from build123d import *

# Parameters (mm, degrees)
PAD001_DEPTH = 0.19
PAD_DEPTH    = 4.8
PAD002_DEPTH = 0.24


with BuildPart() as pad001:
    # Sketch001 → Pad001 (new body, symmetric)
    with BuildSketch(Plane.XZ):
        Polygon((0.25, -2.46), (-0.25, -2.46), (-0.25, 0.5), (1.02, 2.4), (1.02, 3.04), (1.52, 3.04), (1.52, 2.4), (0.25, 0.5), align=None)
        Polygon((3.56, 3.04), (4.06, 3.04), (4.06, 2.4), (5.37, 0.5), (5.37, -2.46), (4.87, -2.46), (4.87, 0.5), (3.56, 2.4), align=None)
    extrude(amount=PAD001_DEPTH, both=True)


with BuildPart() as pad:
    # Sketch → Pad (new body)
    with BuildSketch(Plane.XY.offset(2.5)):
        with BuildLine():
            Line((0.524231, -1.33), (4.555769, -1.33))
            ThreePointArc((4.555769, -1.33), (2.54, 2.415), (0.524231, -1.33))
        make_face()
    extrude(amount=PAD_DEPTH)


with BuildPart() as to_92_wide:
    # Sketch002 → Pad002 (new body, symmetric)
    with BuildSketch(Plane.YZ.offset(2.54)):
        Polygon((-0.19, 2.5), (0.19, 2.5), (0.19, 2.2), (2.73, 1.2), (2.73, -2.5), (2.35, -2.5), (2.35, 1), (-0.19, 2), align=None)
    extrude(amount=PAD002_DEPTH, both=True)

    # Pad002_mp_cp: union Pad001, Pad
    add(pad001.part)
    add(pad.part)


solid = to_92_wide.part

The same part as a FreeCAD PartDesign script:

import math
import FreeCAD as App
import Part
import Sketcher
Q = App.Units.Quantity

doc = App.newDocument("Part")
params = doc.addObject("Spreadsheet::Sheet", "Params")
for row, (alias, value) in enumerate([
    ("sketch1_width", "0.5 mm"),
    ("sketch1_height", "2.96 mm"),
    ("sketch1_height2", "0.64 mm"),
    ("pad1_length", "0.38 mm"),
    ("pad2_length", "4.8 mm"),
    ("sketch3_height", "0.5 mm"),
    ("sketch3_height2", "3.5 mm"),
    ("sketch3_height3", "3.7 mm"),
    ("sketch3_width", "0.38 mm"),
    ("pad3_length", "0.48 mm"),
], start=1):
    params.set(f"A{row}", alias)
    params.set(f"B{row}", "=" + value)
    params.setAlias(f"B{row}", alias)

body = doc.addObject("PartDesign::Body", "Body")
body.AllowCompound = True

# Sketch on XZ plane
sketch1 = doc.addObject("Sketcher::SketchObject", "Sketch")
body.addObject(sketch1)
sketch1.AttachmentSupport = (doc.XZ_Plane, [""])
sketch1.MapMode = "FlatFace"
sketch1.addGeometry(Part.LineSegment(App.Vector(-0.25, -2.46, 0), App.Vector(0.25, -2.46, 0)), False)
sketch1.addGeometry(Part.LineSegment(App.Vector(0.25, -2.46, 0), App.Vector(0.25, 0.5, 0)), False)
sketch1.addGeometry(Part.LineSegment(App.Vector(0.25, 0.5, 0), App.Vector(1.52, 2.4, 0)), False)
sketch1.addGeometry(Part.LineSegment(App.Vector(1.52, 2.4, 0), App.Vector(1.52, 3.04, 0)), False)
sketch1.addGeometry(Part.LineSegment(App.Vector(1.52, 3.04, 0), App.Vector(1.02, 3.04, 0)), False)
sketch1.addGeometry(Part.LineSegment(App.Vector(1.02, 3.04, 0), App.Vector(1.02, 2.4, 0)), False)
sketch1.addGeometry(Part.LineSegment(App.Vector(1.02, 2.4, 0), App.Vector(-0.25, 0.5, 0)), False)
sketch1.addGeometry(Part.LineSegment(App.Vector(-0.25, 0.5, 0), App.Vector(-0.25, -2.46, 0)), False)
sketch1.addGeometry(Part.LineSegment(App.Vector(4.06, 3.04, 0), App.Vector(3.56, 3.04, 0)), False)
sketch1.addGeometry(Part.LineSegment(App.Vector(3.56, 3.04, 0), App.Vector(3.56, 2.4, 0)), False)
sketch1.addGeometry(Part.LineSegment(App.Vector(3.56, 2.4, 0), App.Vector(4.87, 0.5, 0)), False)
sketch1.addGeometry(Part.LineSegment(App.Vector(4.87, 0.5, 0), App.Vector(4.87, -2.46, 0)), False)
sketch1.addGeometry(Part.LineSegment(App.Vector(4.87, -2.46, 0), App.Vector(5.37, -2.46, 0)), False)
sketch1.addGeometry(Part.LineSegment(App.Vector(5.37, -2.46, 0), App.Vector(5.37, 0.5, 0)), False)
sketch1.addGeometry(Part.LineSegment(App.Vector(5.37, 0.5, 0), App.Vector(4.06, 2.4, 0)), False)
sketch1.addGeometry(Part.LineSegment(App.Vector(4.06, 2.4, 0), App.Vector(4.06, 3.04, 0)), False)
sketch1.addConstraint(Sketcher.Constraint("Coincident", 0, 2, 1, 1))
sketch1.addConstraint(Sketcher.Constraint("Coincident", 1, 2, 2, 1))
sketch1.addConstraint(Sketcher.Constraint("Coincident", 2, 2, 3, 1))
sketch1.addConstraint(Sketcher.Constraint("Coincident", 3, 2, 4, 1))
sketch1.addConstraint(Sketcher.Constraint("Coincident", 4, 2, 5, 1))
sketch1.addConstraint(Sketcher.Constraint("Coincident", 5, 2, 6, 1))
sketch1.addConstraint(Sketcher.Constraint("Coincident", 6, 2, 7, 1))
sketch1.addConstraint(Sketcher.Constraint("Coincident", 7, 2, 0, 1))
sketch1.addConstraint(Sketcher.Constraint("Coincident", 8, 2, 9, 1))
sketch1.addConstraint(Sketcher.Constraint("Coincident", 9, 2, 10, 1))
sketch1.addConstraint(Sketcher.Constraint("Coincident", 10, 2, 11, 1))
sketch1.addConstraint(Sketcher.Constraint("Coincident", 11, 2, 12, 1))
sketch1.addConstraint(Sketcher.Constraint("Coincident", 12, 2, 13, 1))
sketch1.addConstraint(Sketcher.Constraint("Coincident", 13, 2, 14, 1))
sketch1.addConstraint(Sketcher.Constraint("Coincident", 14, 2, 15, 1))
sketch1.addConstraint(Sketcher.Constraint("Coincident", 15, 2, 8, 1))
sketch1.addConstraint(Sketcher.Constraint("Horizontal", 0))
sketch1.addConstraint(Sketcher.Constraint("Vertical", 1))
sketch1.addConstraint(Sketcher.Constraint("Vertical", 3))
sketch1.addConstraint(Sketcher.Constraint("Horizontal", 4))
sketch1.addConstraint(Sketcher.Constraint("Vertical", 5))
sketch1.addConstraint(Sketcher.Constraint("Vertical", 7))
sketch1.addConstraint(Sketcher.Constraint("Horizontal", 8))
sketch1.addConstraint(Sketcher.Constraint("Vertical", 9))
sketch1.addConstraint(Sketcher.Constraint("Vertical", 11))
sketch1.addConstraint(Sketcher.Constraint("Horizontal", 12))
sketch1.addConstraint(Sketcher.Constraint("Vertical", 13))
sketch1.addConstraint(Sketcher.Constraint("Vertical", 15))
sketch1.addConstraint(Sketcher.Constraint("Symmetric", 1, 2, 6, 2, -2))
sketch1.addConstraint(Sketcher.Constraint("Parallel", 2, 6))
sketch1.addConstraint(Sketcher.Constraint("Parallel", 10, 14))
sketch1.addConstraint(Sketcher.Constraint("Horizontal", 2, 2, 5, 2))
sketch1.addConstraint(Sketcher.Constraint("Horizontal", 4, 2, 8, 2))
sketch1.addConstraint(Sketcher.Constraint("Horizontal", 5, 2, 9, 2))
sketch1.addConstraint(Sketcher.Constraint("Horizontal", 6, 2, 10, 2))
sketch1.addConstraint(Sketcher.Constraint("Horizontal", 7, 2, 11, 2))
sketch1.addConstraint(Sketcher.Constraint("Horizontal", 10, 2, 13, 2))
sketch1.addConstraint(Sketcher.Constraint("Horizontal", 9, 2, 14, 2))
sketch1.addConstraint(Sketcher.Constraint("Equal", 4, 8))
sketch1.addConstraint(Sketcher.Constraint("DistanceX", 0, 1, 0, 2, Q("0.5 mm")))
sketch1.addConstraint(Sketcher.Constraint("DistanceY", 1, 1, 1, 2, Q("2.96 mm")))
sketch1.addConstraint(Sketcher.Constraint("DistanceY", 3, 1, 3, 2, Q("0.64 mm")))
sketch1.addConstraint(Sketcher.Constraint("DistanceY", -1, 1, 1, 2, Q("0.5 mm")))
sketch1.addConstraint(Sketcher.Constraint("DistanceY", -1, 1, 2, 2, Q("2.4 mm")))
sketch1.addConstraint(Sketcher.Constraint("DistanceX", -1, 1, 2, 2, Q("1.52 mm")))
sketch1.addConstraint(Sketcher.Constraint("DistanceX", -1, 1, 8, 2, Q("3.56 mm")))
sketch1.addConstraint(Sketcher.Constraint("DistanceX", -1, 1, 10, 2, Q("4.87 mm")))
sketch1.setExpression("Constraints[39]", "Params.sketch1_width")
sketch1.setExpression("Constraints[40]", "Params.sketch1_height")
sketch1.setExpression("Constraints[41]", "Params.sketch1_height2")
pad1 = doc.addObject("PartDesign::Pad", "Pad")
body.addObject(pad1)
pad1.Profile = sketch1
pad1.setExpression("Length", "Params.pad1_length")
pad1.Midplane = True
body2 = doc.addObject("PartDesign::Body", "Body001")

# Sketch on XY plane
sketch2 = doc.addObject("Sketcher::SketchObject", "Sketch001")
body2.addObject(sketch2)
sketch2.AttachmentSupport = (doc.getObject("XY_Plane001"), [""])
sketch2.MapMode = "FlatFace"
sketch2.AttachmentOffset = App.Placement(App.Vector(0, 0, 2.5), App.Rotation())
sketch2.addGeometry(Part.LineSegment(App.Vector(0.524231, -1.33, 0), App.Vector(4.555769, -1.33, 0)), False)
sketch2.addGeometry(Part.ArcOfCircle(Part.Circle(App.Vector(2.54, 0, 0), App.Vector(0, 0, 1), 2.415), math.radians(-33.416742), math.radians(213.416742)), False)
sketch2.addConstraint(Sketcher.Constraint("Coincident", 0, 1, 1, 2))
sketch2.addConstraint(Sketcher.Constraint("Coincident", 1, 1, 0, 2))
sketch2.addConstraint(Sketcher.Constraint("Horizontal", 0))
sketch2.addConstraint(Sketcher.Constraint("PointOnObject", 1, 3, -1))
sketch2.addConstraint(Sketcher.Constraint("Radius", 1, Q("2.415 mm")))
sketch2.addConstraint(Sketcher.Constraint("DistanceX", -1, 1, 1, 3, Q("2.54 mm")))
sketch2.addConstraint(Sketcher.Constraint("DistanceY", 0, 1, -1, 1, Q("1.33 mm")))
pad2 = doc.addObject("PartDesign::Pad", "Pad001")
body2.addObject(pad2)
pad2.Profile = sketch2
pad2.setExpression("Length", "Params.pad2_length")
body3 = doc.addObject("PartDesign::Body", "Body002")
body3.AllowCompound = True

# Sketch on YZ plane
sketch3 = doc.addObject("Sketcher::SketchObject", "Sketch002")
body3.addObject(sketch3)
sketch3.AttachmentSupport = (doc.getObject("YZ_Plane002"), [""])
sketch3.MapMode = "FlatFace"
sketch3.AttachmentOffset = App.Placement(App.Vector(0, 0, 2.54), App.Rotation())
sketch3.addGeometry(Part.LineSegment(App.Vector(0.19, 2.5, 0), App.Vector(-0.19, 2.5, 0)), False)
sketch3.addGeometry(Part.LineSegment(App.Vector(-0.19, 2.5, 0), App.Vector(-0.19, 2, 0)), False)
sketch3.addGeometry(Part.LineSegment(App.Vector(-0.19, 2, 0), App.Vector(2.35, 1, 0)), False)
sketch3.addGeometry(Part.LineSegment(App.Vector(2.35, 1, 0), App.Vector(2.35, -2.5, 0)), False)
sketch3.addGeometry(Part.LineSegment(App.Vector(2.35, -2.5, 0), App.Vector(2.73, -2.5, 0)), False)
sketch3.addGeometry(Part.LineSegment(App.Vector(2.73, -2.5, 0), App.Vector(2.73, 1.2, 0)), False)
sketch3.addGeometry(Part.LineSegment(App.Vector(2.73, 1.2, 0), App.Vector(0.19, 2.2, 0)), False)
sketch3.addGeometry(Part.LineSegment(App.Vector(0.19, 2.2, 0), App.Vector(0.19, 2.5, 0)), False)
sketch3.addConstraint(Sketcher.Constraint("Coincident", 0, 2, 1, 1))
sketch3.addConstraint(Sketcher.Constraint("Coincident", 1, 2, 2, 1))
sketch3.addConstraint(Sketcher.Constraint("Coincident", 2, 2, 3, 1))
sketch3.addConstraint(Sketcher.Constraint("Coincident", 3, 2, 4, 1))
sketch3.addConstraint(Sketcher.Constraint("Coincident", 4, 2, 5, 1))
sketch3.addConstraint(Sketcher.Constraint("Coincident", 5, 2, 6, 1))
sketch3.addConstraint(Sketcher.Constraint("Coincident", 6, 2, 7, 1))
sketch3.addConstraint(Sketcher.Constraint("Coincident", 7, 2, 0, 1))
sketch3.addConstraint(Sketcher.Constraint("Horizontal", 0))
sketch3.addConstraint(Sketcher.Constraint("Vertical", 1))
sketch3.addConstraint(Sketcher.Constraint("Vertical", 3))
sketch3.addConstraint(Sketcher.Constraint("Horizontal", 4))
sketch3.addConstraint(Sketcher.Constraint("Vertical", 5))
sketch3.addConstraint(Sketcher.Constraint("Vertical", 7))
sketch3.addConstraint(Sketcher.Constraint("Parallel", 2, 6))
sketch3.addConstraint(Sketcher.Constraint("Equal", 0, 4))
sketch3.addConstraint(Sketcher.Constraint("DistanceY", 1, 2, 1, 1, Q("0.5 mm")))
sketch3.addConstraint(Sketcher.Constraint("DistanceY", 3, 2, 3, 1, Q("3.5 mm")))
sketch3.addConstraint(Sketcher.Constraint("DistanceY", 5, 1, 5, 2, Q("3.7 mm")))
sketch3.addConstraint(Sketcher.Constraint("DistanceY", -1, 1, 1, 2, Q("2 mm")))
sketch3.addConstraint(Sketcher.Constraint("DistanceY", -1, 1, 2, 2, Q("1 mm")))
sketch3.addConstraint(Sketcher.Constraint("DistanceX", 0, 2, 0, 1, Q("0.38 mm")))
sketch3.addConstraint(Sketcher.Constraint("DistanceX", 0, 2, -1, 1, Q("0.19 mm")))
sketch3.addConstraint(Sketcher.Constraint("DistanceX", -1, 1, 2, 2, Q("2.35 mm")))
sketch3.setExpression("Constraints[16]", "Params.sketch3_height")
sketch3.setExpression("Constraints[17]", "Params.sketch3_height2")
sketch3.setExpression("Constraints[18]", "Params.sketch3_height3")
sketch3.setExpression("Constraints[21]", "Params.sketch3_width")
pad3 = doc.addObject("PartDesign::Pad", "Pad002")
body3.addObject(pad3)
pad3.Profile = sketch3
pad3.setExpression("Length", "Params.pad3_length")
pad3.Midplane = True
doc.recompute()

boolean = doc.addObject("PartDesign::Boolean", "Boolean")
body3.addObject(boolean)
boolean.Type = "Fuse"
boolean.addObjects([body])
doc.recompute()

boolean2 = doc.addObject("PartDesign::Boolean", "Boolean001")
body3.addObject(boolean2)
boolean2.Type = "Fuse"
boolean2.addObjects([body2])

doc.recompute()
